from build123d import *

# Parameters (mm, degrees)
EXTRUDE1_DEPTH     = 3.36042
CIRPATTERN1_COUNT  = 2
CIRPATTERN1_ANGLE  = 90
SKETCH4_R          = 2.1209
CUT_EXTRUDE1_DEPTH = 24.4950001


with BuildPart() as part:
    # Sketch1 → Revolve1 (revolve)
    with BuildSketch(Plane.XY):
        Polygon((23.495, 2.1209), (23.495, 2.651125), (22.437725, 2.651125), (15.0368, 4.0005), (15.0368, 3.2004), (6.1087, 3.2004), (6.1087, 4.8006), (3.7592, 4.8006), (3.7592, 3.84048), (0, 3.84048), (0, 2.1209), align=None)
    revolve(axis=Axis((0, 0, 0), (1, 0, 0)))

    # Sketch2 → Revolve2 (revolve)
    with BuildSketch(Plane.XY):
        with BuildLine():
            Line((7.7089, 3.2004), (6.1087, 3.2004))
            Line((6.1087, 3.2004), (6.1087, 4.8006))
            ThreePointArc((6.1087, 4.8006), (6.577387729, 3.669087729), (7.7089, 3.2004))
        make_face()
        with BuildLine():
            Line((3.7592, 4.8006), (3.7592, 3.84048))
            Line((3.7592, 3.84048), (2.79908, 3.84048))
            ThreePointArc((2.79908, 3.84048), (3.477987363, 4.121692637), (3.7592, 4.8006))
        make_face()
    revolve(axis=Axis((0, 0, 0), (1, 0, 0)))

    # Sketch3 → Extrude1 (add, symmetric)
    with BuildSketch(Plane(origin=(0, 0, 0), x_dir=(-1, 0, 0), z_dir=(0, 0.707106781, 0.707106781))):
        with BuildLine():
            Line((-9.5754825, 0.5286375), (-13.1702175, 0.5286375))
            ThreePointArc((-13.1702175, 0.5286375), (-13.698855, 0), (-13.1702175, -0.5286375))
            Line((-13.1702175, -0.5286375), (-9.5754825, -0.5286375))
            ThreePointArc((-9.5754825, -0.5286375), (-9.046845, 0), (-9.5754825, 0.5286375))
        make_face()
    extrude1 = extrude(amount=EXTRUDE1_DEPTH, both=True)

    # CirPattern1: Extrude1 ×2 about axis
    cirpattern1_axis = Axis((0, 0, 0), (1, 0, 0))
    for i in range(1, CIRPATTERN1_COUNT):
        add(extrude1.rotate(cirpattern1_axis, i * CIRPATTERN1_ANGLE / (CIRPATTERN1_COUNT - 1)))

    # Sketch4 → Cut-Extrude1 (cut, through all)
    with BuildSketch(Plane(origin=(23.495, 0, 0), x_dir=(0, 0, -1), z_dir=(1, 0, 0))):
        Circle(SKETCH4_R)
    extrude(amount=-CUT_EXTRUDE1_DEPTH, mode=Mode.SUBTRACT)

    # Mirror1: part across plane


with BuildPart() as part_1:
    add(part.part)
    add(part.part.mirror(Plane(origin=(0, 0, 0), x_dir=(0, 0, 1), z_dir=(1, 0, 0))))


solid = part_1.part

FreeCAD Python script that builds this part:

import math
import FreeCAD as App
import Part
import Sketcher
from FreeCAD import Vector
Q = App.Units.Quantity

doc = App.newDocument("Part")
body = doc.addObject("PartDesign::Body", "Body")

# Sketch on XY plane
sketch1 = body.newObject("Sketcher::SketchObject", "Sketch")
sketch1.AttachmentSupport = (doc.getObject("XY_Plane"), [""])
sketch1.MapMode = "FlatFace"
sketch1.addGeometry(Part.LineSegment(Vector(23.5, 2.1, 0), Vector(23.5, 2.7, 0)), False)
sketch1.addGeometry(Part.LineSegment(Vector(23.5, 2.7, 0), Vector(22.4, 2.7, 0)), False)
sketch1.addGeometry(Part.LineSegment(Vector(22.4, 2.7, 0), Vector(15, 4, 0)), False)
sketch1.addGeometry(Part.LineSegment(Vector(15, 4, 0), Vector(15, 3.2, 0)), False)
sketch1.addGeometry(Part.LineSegment(Vector(15, 3.2, 0), Vector(6.1, 3.2, 0)), False)
sketch1.addGeometry(Part.LineSegment(Vector(6.1, 3.2, 0), Vector(6.1, 4.8, 0)), False)
sketch1.addGeometry(Part.LineSegment(Vector(6.1, 4.8, 0), Vector(3.8, 4.8, 0)), False)
sketch1.addGeometry(Part.LineSegment(Vector(3.8, 4.8, 0), Vector(3.8, 3.8, 0)), False)
sketch1.addGeometry(Part.LineSegment(Vector(3.8, 3.8, 0), Vector(0, 3.8, 0)), False)
sketch1.addGeometry(Part.LineSegment(Vector(0, 3.8, 0), Vector(0, 2.1, 0)), False)
sketch1.addGeometry(Part.LineSegment(Vector(0, 2.1, 0), Vector(23.5, 2.1, 0)), False)
sketch1.addConstraint(Sketcher.Constraint("Coincident", 0, 2, 1, 1))
sketch1.addConstraint(Sketcher.Constraint("Coincident", 1, 2, 2, 1))
sketch1.addConstraint(Sketcher.Constraint("Coincident", 2, 2, 3, 1))
sketch1.addConstraint(Sketcher.Constraint("Coincident", 3, 2, 4, 1))
sketch1.addConstraint(Sketcher.Constraint("Coincident", 4, 2, 5, 1))
sketch1.addConstraint(Sketcher.Constraint("Coincident", 5, 2, 6, 1))
sketch1.addConstraint(Sketcher.Constraint("Coincident", 6, 2, 7, 1))
sketch1.addConstraint(Sketcher.Constraint("Coincident", 7, 2, 8, 1))
sketch1.addConstraint(Sketcher.Constraint("Coincident", 8, 2, 9, 1))
sketch1.addConstraint(Sketcher.Constraint("Coincident", 9, 2, 10, 1))
sketch1.addConstraint(Sketcher.Constraint("Coincident", 10, 2, 0, 1))
sketch1.addConstraint(Sketcher.Constraint("Vertical", 0))
sketch1.addConstraint(Sketcher.Constraint("Horizontal", 1))
sketch1.addConstraint(Sketcher.Constraint("Vertical", 3))
sketch1.addConstraint(Sketcher.Constraint("Horizontal", 4))
sketch1.addConstraint(Sketcher.Constraint("Vertical", 5))
sketch1.addConstraint(Sketcher.Constraint("Horizontal", 6))
sketch1.addConstraint(Sketcher.Constraint("Vertical", 7))
sketch1.addConstraint(Sketcher.Constraint("Horizontal", 8))
sketch1.addConstraint(Sketcher.Constraint("Vertical", 9))
sketch1.addConstraint(Sketcher.Constraint("Horizontal", 10))
sketch1.addConstraint(Sketcher.Constraint("PointOnObject", 8, 2, -2))
sketch1.addConstraint(Sketcher.Constraint("DistanceX", 8, 2, 8, 1, Q("0.148 in")))
sketch1.addConstraint(Sketcher.Constraint("DistanceX", 10, 1, 10, 2, Q("0.925 in")))
sketch1.addConstraint(Sketcher.Constraint("DistanceY", 5, 1, 5, 2, Q("0.063 in")))
sketch1.addConstraint(Sketcher.Constraint("DistanceX", 4, 2, 4, 1, Q("0.3515 in")))
sketch1.addConstraint(Sketcher.Constraint("DistanceX", 6, 2, 6, 1, Q("0.0925 in")))
sketch1.addConstraint(Sketcher.Constraint("DistanceY", 3, 2, 3, 1, Q("0.0315 in")))
sketch1.addConstraint(Sketcher.Constraint("DistanceY", 7, 2, 7, 1, Q("0.0378 in")))
sketch1.addConstraint(Sketcher.Constraint("DistanceY", 9, 2, 9, 1, Q("0.0677 in")))
sketch1.addConstraint(Sketcher.Constraint("DistanceY", -1, 1, 3, 2, Q("0.126 in")))
sketch1.addConstraint(Sketcher.Constraint("Distance", 2, 7.522932))
sketch1.addConstraint(Sketcher.Constraint("DistanceX", 1, 2, 1, 1, 1.057275))
revolution = body.newObject("PartDesign::Revolution", "Revolution")
revolution.Profile = sketch1
revolution.ReferenceAxis = (sketch1, ["H_Axis"])
revolution.Angle = 360

# Sketch on XY plane
sketch2 = body.newObject("Sketcher::SketchObject", "Sketch001")
sketch2.AttachmentSupport = (doc.getObject("XY_Plane"), [""])
sketch2.MapMode = "FlatFace"
sketch2.addGeometry(Part.LineSegment(Vector(6.1, 3.2, 0), Vector(7.7, 3.2, 0)), False)
sketch2.addGeometry(Part.ArcOfCircle(Part.Circle(Vector(7.7, 4.8, 0), Vector(0, 0, 1), 1.6), math.radians(-180), math.radians(-90)), False)
sketch2.addGeometry(Part.LineSegment(Vector(6.1, 4.8, 0), Vector(6.1, 3.2, 0)), False)
sketch2.addGeometry(Part.LineSegment(Vector(3.8, 3.8, 0), Vector(3.8, 4.8, 0)), False)
sketch2.addGeometry(Part.ArcOfCircle(Part.Circle(Vector(2.8, 4.8, 0), Vector(0, 0, 1), 1), math.radians(-90), math.radians(0)), False)
sketch2.addGeometry(Part.LineSegment(Vector(2.8, 3.8, 0), Vector(3.8, 3.8, 0)), False)
sketch2.addConstraint(Sketcher.Constraint("Tangent", 0, 2, 1, 2))
sketch2.addConstraint(Sketcher.Constraint("Tangent", 1, 1, 2, 1))
sketch2.addConstraint(Sketcher.Constraint("Coincident", 2, 2, 0, 1))
sketch2.addConstraint(Sketcher.Constraint("Tangent", 3, 2, 4, 2))
sketch2.addConstraint(Sketcher.Constraint("Tangent", 4, 1, 5, 1))
sketch2.addConstraint(Sketcher.Constraint("Coincident", 5, 2, 3, 1))
sketch2.addConstraint(Sketcher.Constraint("Horizontal", 0))
sketch2.addConstraint(Sketcher.Constraint("Vertical", 2))
sketch2.addConstraint(Sketcher.Constraint("Vertical", 3))
sketch2.addConstraint(Sketcher.Constraint("Horizontal", 5))
sketch2.addConstraint(Sketcher.Constraint("Horizontal", 1, 3, 4, 3))
sketch2.addConstraint(Sketcher.Constraint("Radius", 1, Q("0.063 in")))
sketch2.addConstraint(Sketcher.Constraint("Radius", 4, Q("0.0378 in")))
sketch2.addConstraint(Sketcher.Constraint("DistanceY", -1, 1, 1, 3, Q("0.189 in")))
sketch2.addConstraint(Sketcher.Constraint("DistanceX", -1, 1, 3, 2, Q("0.148 in")))
sketch2.addConstraint(Sketcher.Constraint("DistanceX", -1, 1, 1, 3, Q("0.3035 in")))
revolution2 = body.newObject("PartDesign::Revolution", "Revolution001")
revolution2.Profile = sketch2
revolution2.ReferenceAxis = (sketch2, ["H_Axis"])
revolution2.Angle = 360

# Sketch on an angled plane
sketch3 = body.newObject("Sketcher::SketchObject", "Sketch002")
sketch3.Placement = App.Placement(Vector(0, 0, 0), App.Rotation(Vector(-1, 0, 0), Vector(0, -0.707106781, 0.707106781), Vector(0, 0.707106781, 0.707106781), "ZXY"))
sketch3.addGeometry(Part.LineSegment(Vector(-9.6, 0.5, 0), Vector(-13.2, 0.5, 0)), False)
sketch3.addGeometry(Part.ArcOfCircle(Part.Circle(Vector(-13.2, 0, 0), Vector(0, 0, 1), 0.5), math.radians(90), math.radians(270)), False)
sketch3.addGeometry(Part.LineSegment(Vector(-13.2, -0.5, 0), Vector(-9.6, -0.5, 0)), False)
sketch3.addGeometry(Part.ArcOfCircle(Part.Circle(Vector(-9.6, 0, 0), Vector(0, 0, 1), 0.5), math.radians(-90), math.radians(90)), False)
sketch3.addConstraint(Sketcher.Constraint("Tangent", 0, 2, 1, 1))
sketch3.addConstraint(Sketcher.Constraint("Tangent", 1, 2, 2, 1))
sketch3.addConstraint(Sketcher.Constraint("Tangent", 2, 2, 3, 1))
sketch3.addConstraint(Sketcher.Constraint("Tangent", 3, 2, 0, 1))
sketch3.addConstraint(Sketcher.Constraint("Horizontal", 0))
sketch3.addConstraint(Sketcher.Constraint("Horizontal", 2))
sketch3.addConstraint(Sketcher.Constraint("PointOnObject", 1, 3, -1))
sketch3.addConstraint(Sketcher.Constraint("Radius", 1, 0.528637))
sketch3.addConstraint(Sketcher.Constraint("DistanceX", 0, 2, 0, 1, 3.594735))
sketch3.addConstraint(Sketcher.Constraint("DistanceX", 1, 3, -1, 1, 13.170217))
pad1 = body.newObject("PartDesign::Pad", "Pad")
pad1.Profile = sketch3
pad1.Length = Q("0.2646 in")
pad1.Midplane = True
doc.recompute()

polarpattern = body.newObject("PartDesign::PolarPattern", "PolarPattern")
polarpattern.Originals = [pad1]
polarpattern.Axis = (doc.getObject("X_Axis"), [""])
polarpattern.Angle = 90
polarpattern.Occurrences = 2
body.Tip = polarpattern

# Sketch on YZ plane
sketch4 = body.newObject("Sketcher::SketchObject", "Sketch003")
sketch4.AttachmentSupport = (doc.getObject("YZ_Plane"), [""])
sketch4.MapMode = "FlatFace"
sketch4.AttachmentOffset = App.Placement(Vector(0, 0, 0.925 * 25.4), App.Rotation())
sketch4.addGeometry(Part.Circle(Vector(0, 0, 0), Vector(0, 0, 1), 2.1), False)
sketch4.addConstraint(Sketcher.Constraint("Coincident", 0, 3, -1, 1))
sketch4.addConstraint(Sketcher.Constraint("Diameter", 0, Q("0.167 in")))
pocket1 = body.newObject("PartDesign::Pocket", "Pocket")
pocket1.Profile = sketch4
pocket1.Type = "ThroughAll"
body2 = doc.addObject("PartDesign::Body", "Body001")
doc.recompute()

body2.BaseFeature = body
doc.recompute()

mirroring = doc.addObject("Part::Mirroring", "Mirroring")
mirroring.Source = body
mirroring.Base = Vector(0, 0, 0)
mirroring.Normal = Vector(1, 0, 0)
body3 = doc.addObject("PartDesign::Body", "Body002")
body3.BaseFeature = mirroring
boolean = body2.newObject("PartDesign::Boolean", "Boolean")
boolean.Type = "Fuse"
boolean.addObjects([body3])
doc.recompute()
mirroring.Visibility = False

doc.recompute()
